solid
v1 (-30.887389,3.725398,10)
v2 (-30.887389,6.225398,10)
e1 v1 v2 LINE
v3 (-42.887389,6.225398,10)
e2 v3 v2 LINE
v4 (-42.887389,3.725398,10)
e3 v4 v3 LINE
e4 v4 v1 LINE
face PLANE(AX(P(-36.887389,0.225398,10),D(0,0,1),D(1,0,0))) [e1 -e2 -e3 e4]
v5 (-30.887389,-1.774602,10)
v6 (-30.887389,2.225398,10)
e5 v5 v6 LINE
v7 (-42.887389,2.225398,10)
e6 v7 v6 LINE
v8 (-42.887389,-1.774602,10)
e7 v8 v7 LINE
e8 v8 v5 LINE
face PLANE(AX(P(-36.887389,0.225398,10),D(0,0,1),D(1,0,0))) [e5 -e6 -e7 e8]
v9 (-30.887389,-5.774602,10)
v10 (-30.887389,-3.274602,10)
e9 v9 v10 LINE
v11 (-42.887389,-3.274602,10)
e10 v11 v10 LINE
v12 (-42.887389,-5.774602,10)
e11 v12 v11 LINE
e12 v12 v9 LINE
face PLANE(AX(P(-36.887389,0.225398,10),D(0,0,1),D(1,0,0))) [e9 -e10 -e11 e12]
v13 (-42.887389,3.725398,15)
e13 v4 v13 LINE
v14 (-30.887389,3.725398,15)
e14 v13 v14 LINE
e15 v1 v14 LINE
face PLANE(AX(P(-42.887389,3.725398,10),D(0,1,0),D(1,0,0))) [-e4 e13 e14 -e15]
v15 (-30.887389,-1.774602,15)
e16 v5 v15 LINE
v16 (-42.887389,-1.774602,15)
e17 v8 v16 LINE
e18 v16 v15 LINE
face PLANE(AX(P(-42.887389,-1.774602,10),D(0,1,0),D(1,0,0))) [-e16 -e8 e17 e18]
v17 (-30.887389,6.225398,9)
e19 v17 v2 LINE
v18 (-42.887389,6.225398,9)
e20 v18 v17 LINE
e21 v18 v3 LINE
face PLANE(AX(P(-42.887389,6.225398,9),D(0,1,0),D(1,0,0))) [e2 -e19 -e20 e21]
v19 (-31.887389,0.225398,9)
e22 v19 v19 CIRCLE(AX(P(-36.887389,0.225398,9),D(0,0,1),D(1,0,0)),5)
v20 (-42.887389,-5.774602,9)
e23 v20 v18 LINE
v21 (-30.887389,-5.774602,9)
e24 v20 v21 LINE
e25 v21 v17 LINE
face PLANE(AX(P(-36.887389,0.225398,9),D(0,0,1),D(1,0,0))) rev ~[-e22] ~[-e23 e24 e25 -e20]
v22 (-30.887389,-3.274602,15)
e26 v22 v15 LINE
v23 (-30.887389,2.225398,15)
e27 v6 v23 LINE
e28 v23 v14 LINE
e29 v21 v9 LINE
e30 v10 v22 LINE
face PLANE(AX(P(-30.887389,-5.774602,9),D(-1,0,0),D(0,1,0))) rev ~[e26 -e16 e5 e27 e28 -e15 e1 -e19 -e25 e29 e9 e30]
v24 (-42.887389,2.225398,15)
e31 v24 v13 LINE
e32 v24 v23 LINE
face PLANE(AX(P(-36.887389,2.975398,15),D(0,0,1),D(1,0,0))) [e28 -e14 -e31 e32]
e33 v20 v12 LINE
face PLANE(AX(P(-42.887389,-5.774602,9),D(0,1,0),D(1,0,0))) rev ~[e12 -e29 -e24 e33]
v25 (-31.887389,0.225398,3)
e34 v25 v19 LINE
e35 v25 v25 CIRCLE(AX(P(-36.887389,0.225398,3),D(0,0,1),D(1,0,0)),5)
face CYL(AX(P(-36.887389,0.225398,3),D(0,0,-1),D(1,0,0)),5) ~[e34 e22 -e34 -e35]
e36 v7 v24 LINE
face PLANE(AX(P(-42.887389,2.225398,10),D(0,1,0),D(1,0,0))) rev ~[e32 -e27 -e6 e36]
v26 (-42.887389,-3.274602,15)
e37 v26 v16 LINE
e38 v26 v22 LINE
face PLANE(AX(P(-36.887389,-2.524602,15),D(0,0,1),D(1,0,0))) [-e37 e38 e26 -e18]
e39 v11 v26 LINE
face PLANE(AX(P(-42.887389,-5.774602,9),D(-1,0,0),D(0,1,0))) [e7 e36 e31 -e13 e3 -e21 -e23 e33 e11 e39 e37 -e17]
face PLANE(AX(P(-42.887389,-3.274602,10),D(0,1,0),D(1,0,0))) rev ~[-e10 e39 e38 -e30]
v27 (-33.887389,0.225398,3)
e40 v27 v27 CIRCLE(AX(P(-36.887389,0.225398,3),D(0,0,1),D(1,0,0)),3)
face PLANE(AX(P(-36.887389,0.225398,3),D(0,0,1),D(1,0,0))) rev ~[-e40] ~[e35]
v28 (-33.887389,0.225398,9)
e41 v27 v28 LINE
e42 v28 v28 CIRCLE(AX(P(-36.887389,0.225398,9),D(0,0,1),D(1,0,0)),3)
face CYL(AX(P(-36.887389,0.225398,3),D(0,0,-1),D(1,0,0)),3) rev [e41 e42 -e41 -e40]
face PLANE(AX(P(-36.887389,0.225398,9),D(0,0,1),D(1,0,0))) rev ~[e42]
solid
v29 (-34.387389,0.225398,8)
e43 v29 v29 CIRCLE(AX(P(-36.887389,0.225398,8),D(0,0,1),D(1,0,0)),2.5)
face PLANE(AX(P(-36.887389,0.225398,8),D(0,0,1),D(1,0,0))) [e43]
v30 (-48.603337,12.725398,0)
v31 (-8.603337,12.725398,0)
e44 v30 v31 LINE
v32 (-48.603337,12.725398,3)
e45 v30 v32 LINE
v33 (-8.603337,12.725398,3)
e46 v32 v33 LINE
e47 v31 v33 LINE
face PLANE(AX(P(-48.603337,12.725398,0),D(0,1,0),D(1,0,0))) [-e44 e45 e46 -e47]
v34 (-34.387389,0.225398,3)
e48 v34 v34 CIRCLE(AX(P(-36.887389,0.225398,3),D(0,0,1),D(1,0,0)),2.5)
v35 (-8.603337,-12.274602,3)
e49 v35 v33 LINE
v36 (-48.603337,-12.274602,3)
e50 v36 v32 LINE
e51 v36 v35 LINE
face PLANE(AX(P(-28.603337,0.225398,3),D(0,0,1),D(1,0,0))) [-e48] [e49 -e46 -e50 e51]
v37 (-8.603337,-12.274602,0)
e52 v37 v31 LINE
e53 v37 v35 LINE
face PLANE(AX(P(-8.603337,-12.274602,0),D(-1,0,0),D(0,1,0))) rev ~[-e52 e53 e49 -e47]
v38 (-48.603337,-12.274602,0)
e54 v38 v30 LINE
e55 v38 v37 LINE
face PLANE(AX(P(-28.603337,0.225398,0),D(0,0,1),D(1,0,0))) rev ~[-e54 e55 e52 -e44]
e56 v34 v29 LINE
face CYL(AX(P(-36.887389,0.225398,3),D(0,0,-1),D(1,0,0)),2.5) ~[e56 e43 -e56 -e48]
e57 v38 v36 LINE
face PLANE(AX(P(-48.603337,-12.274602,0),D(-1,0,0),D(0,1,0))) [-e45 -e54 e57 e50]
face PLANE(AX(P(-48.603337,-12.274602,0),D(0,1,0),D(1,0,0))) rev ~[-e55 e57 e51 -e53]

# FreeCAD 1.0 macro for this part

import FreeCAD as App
import Part
import Sketcher

doc = App.newDocument("Part")
body = doc.addObject("PartDesign::Body", "Body")

# Sketch on XY plane
sketch1 = body.newObject("Sketcher::SketchObject", "Sketch")
sketch1.AttachmentSupport = (doc.getObject("XY_Plane"), [""])
sketch1.MapMode = "FlatFace"
sketch1.addGeometry([
    Part.LineSegment(App.Vector(-49, 13, 0), App.Vector(-49, -12, 0)),
    Part.LineSegment(App.Vector(-49, -12, 0), App.Vector(-9, -12, 0)),
    Part.LineSegment(App.Vector(-9, -12, 0), App.Vector(-9, 13, 0)),
    Part.LineSegment(App.Vector(-9, 13, 0), App.Vector(-49, 13, 0)),
], False)
sketch1.addConstraint([
    Sketcher.Constraint("Coincident", 0, 2, 1, 1),
    Sketcher.Constraint("Coincident", 1, 2, 2, 1),
    Sketcher.Constraint("Coincident", 2, 2, 3, 1),
    Sketcher.Constraint("Coincident", 3, 2, 0, 1),
    Sketcher.Constraint("Vertical", 0),
    Sketcher.Constraint("Horizontal", 1),
    Sketcher.Constraint("Vertical", 2),
    Sketcher.Constraint("Horizontal", 3),
    Sketcher.Constraint("DistanceX", 1, 1, 1, 2, 40.0),
    Sketcher.Constraint("DistanceY", 0, 2, 0, 1, 25.0),
    Sketcher.Constraint("DistanceX", 0, 2, -1, 1, 48.603337),
    Sketcher.Constraint("DistanceY", 0, 2, -1, 1, 12.274602),
])
pad1 = body.newObject("PartDesign::Pad", "Pad")
pad1.Profile = sketch1
pad1.Length = 3

# Sketch on XY plane
sketch2 = body.newObject("Sketcher::SketchObject", "Sketch001")
sketch2.AttachmentSupport = (doc.getObject("XY_Plane"), [""])
sketch2.MapMode = "FlatFace"
sketch2.AttachmentOffset = App.Placement(App.Vector(0, 0, 3), App.Rotation())
sketch2.addGeometry(Part.Circle(App.Vector(-36.9, 0.2, 0), App.Vector(0, 0, 1), 2.5), False)
sketch2.addConstraint([
    Sketcher.Constraint("Diameter", 0, 5.0),
    Sketcher.Constraint("DistanceX", 0, 3, -1, 1, 36.887389),
    Sketcher.Constraint("DistanceY", -1, 1, 0, 3, 0.225398),
])
pad2 = body.newObject("PartDesign::Pad", "Pad001")
pad2.Profile = sketch2
pad2.Length = 5
body2 = doc.addObject("PartDesign::Body", "Body001")

# Sketch on XY plane
sketch3 = body2.newObject("Sketcher::SketchObject", "Sketch002")
sketch3.AttachmentSupport = (doc.getObject("XY_Plane001"), [""])
sketch3.MapMode = "FlatFace"
sketch3.AttachmentOffset = App.Placement(App.Vector(0, 0, 3), App.Rotation())
sketch3.addGeometry([
    Part.Circle(App.Vector(-36.9, 0.2, 0), App.Vector(0, 0, 1), 5),
    Part.Circle(App.Vector(-36.9, 0.2, 0), App.Vector(0, 0, 1), 3),
], False)
sketch3.addConstraint([
    Sketcher.Constraint("Coincident", 1, 3, 0, 3),
    Sketcher.Constraint("Diameter", 0, 10.0),
    Sketcher.Constraint("Diameter", 1, 6.0),
    Sketcher.Constraint("DistanceX", 0, 3, -1, 1, 36.887389),
    Sketcher.Constraint("DistanceY", -1, 1, 0, 3, 0.225398),
])
pad3 = body2.newObject("PartDesign::Pad", "Pad002")
pad3.Profile = sketch3
pad3.Length = 6

# Sketch on XY plane
sketch4 = body2.newObject("Sketcher::SketchObject", "Sketch003")
sketch4.AttachmentSupport = (doc.getObject("XY_Plane001"), [""])
sketch4.MapMode = "FlatFace"
sketch4.AttachmentOffset = App.Placement(App.Vector(0, 0, 9), App.Rotation())
sketch4.addGeometry([
    Part.LineSegment(App.Vector(-43, 6, 0), App.Vector(-43, -6, 0)),
    Part.LineSegment(App.Vector(-43, -6, 0), App.Vector(-31, -6, 0)),
    Part.LineSegment(App.Vector(-31, -6, 0), App.Vector(-31, 6, 0)),
    Part.LineSegment(App.Vector(-31, 6, 0), App.Vector(-43, 6, 0)),
], False)
sketch4.addConstraint([
    Sketcher.Constraint("Coincident", 0, 2, 1, 1),
    Sketcher.Constraint("Coincident", 1, 2, 2, 1),
    Sketcher.Constraint("Coincident", 2, 2, 3, 1),
    Sketcher.Constraint("Coincident", 3, 2, 0, 1),
    Sketcher.Constraint("Vertical", 0),
    Sketcher.Constraint("Horizontal", 1),
    Sketcher.Constraint("Vertical", 2),
    Sketcher.Constraint("Horizontal", 3),
    Sketcher.Constraint("Equal", 3, 0),
    Sketcher.Constraint("DistanceX", 1, 1, 1, 2, 12.0),
    Sketcher.Constraint("DistanceY", 0, 2, -1, 1, 5.774602),
    Sketcher.Constraint("DistanceX", 0, 2, -1, 1, 42.887389),
])
pad4 = body2.newObject("PartDesign::Pad", "Pad003")
pad4.Profile = sketch4
pad4.Length = 1

# Sketch on XY plane
sketch5 = body2.newObject("Sketcher::SketchObject", "Sketch004")
sketch5.AttachmentSupport = (doc.getObject("XY_Plane001"), [""])
sketch5.MapMode = "FlatFace"
sketch5.AttachmentOffset = App.Placement(App.Vector(0, 0, 10), App.Rotation())
sketch5.addGeometry([
    Part.LineSegment(App.Vector(-42.9, 3.7, 0), App.Vector(-42.9, 2.2, 0)),  # 0
    Part.LineSegment(App.Vector(-42.9, 2.2, 0), App.Vector(-30.9, 2.2, 0)),  # 1
    Part.LineSegment(App.Vector(-30.9, 2.2, 0), App.Vector(-30.9, 3.7, 0)),  # 2
    Part.LineSegment(App.Vector(-30.9, 3.7, 0), App.Vector(-42.9, 3.7, 0)),  # 3
    Part.LineSegment(App.Vector(-42.9, -1.8, 0), App.Vector(-42.9, -3.3, 0)),  # 4
    Part.LineSegment(App.Vector(-42.9, -3.3, 0), App.Vector(-30.9, -3.3, 0)),  # 5
    Part.LineSegment(App.Vector(-30.9, -3.3, 0), App.Vector(-30.9, -1.8, 0)),  # 6
    Part.LineSegment(App.Vector(-30.9, -1.8, 0), App.Vector(-42.9, -1.8, 0)),  # 7
], False)
sketch5.addConstraint([
    Sketcher.Constraint("Coincident", 0, 2, 1, 1),
    Sketcher.Constraint("Coincident", 1, 2, 2, 1),
    Sketcher.Constraint("Coincident", 2, 2, 3, 1),
    Sketcher.Constraint("Coincident", 3, 2, 0, 1),
    Sketcher.Constraint("Coincident", 4, 2, 5, 1),
    Sketcher.Constraint("Coincident", 5, 2, 6, 1),
    Sketcher.Constraint("Coincident", 6, 2, 7, 1),
    Sketcher.Constraint("Coincident", 7, 2, 4, 1),
    Sketcher.Constraint("Vertical", 0),
    Sketcher.Constraint("Horizontal", 1),
    Sketcher.Constraint("Vertical", 2),
    Sketcher.Constraint("Horizontal", 3),
    Sketcher.Constraint("Vertical", 4),
    Sketcher.Constraint("Horizontal", 5),
    Sketcher.Constraint("Vertical", 6),
    Sketcher.Constraint("Horizontal", 7),
    Sketcher.Constraint("Vertical", 3, 2, 4, 2),
    Sketcher.Constraint("Vertical", 2, 2, 5, 2),
    Sketcher.Constraint("Equal", 2, 4),
    Sketcher.Constraint("DistanceX", 1, 1, 1, 2, 12.0),
    Sketcher.Constraint("DistanceY", 0, 2, 0, 1, 1.5),
    Sketcher.Constraint("DistanceY", 4, 2, 3, 2, 7.0),
    Sketcher.Constraint("DistanceY", -1, 1, 0, 2, 2.225398),
    Sketcher.Constraint("DistanceX", 0, 2, -1, 1, 42.887389),
])
pad5 = body2.newObject("PartDesign::Pad", "Pad004")
pad5.Profile = sketch5
pad5.Length = 5

doc.recompute()
